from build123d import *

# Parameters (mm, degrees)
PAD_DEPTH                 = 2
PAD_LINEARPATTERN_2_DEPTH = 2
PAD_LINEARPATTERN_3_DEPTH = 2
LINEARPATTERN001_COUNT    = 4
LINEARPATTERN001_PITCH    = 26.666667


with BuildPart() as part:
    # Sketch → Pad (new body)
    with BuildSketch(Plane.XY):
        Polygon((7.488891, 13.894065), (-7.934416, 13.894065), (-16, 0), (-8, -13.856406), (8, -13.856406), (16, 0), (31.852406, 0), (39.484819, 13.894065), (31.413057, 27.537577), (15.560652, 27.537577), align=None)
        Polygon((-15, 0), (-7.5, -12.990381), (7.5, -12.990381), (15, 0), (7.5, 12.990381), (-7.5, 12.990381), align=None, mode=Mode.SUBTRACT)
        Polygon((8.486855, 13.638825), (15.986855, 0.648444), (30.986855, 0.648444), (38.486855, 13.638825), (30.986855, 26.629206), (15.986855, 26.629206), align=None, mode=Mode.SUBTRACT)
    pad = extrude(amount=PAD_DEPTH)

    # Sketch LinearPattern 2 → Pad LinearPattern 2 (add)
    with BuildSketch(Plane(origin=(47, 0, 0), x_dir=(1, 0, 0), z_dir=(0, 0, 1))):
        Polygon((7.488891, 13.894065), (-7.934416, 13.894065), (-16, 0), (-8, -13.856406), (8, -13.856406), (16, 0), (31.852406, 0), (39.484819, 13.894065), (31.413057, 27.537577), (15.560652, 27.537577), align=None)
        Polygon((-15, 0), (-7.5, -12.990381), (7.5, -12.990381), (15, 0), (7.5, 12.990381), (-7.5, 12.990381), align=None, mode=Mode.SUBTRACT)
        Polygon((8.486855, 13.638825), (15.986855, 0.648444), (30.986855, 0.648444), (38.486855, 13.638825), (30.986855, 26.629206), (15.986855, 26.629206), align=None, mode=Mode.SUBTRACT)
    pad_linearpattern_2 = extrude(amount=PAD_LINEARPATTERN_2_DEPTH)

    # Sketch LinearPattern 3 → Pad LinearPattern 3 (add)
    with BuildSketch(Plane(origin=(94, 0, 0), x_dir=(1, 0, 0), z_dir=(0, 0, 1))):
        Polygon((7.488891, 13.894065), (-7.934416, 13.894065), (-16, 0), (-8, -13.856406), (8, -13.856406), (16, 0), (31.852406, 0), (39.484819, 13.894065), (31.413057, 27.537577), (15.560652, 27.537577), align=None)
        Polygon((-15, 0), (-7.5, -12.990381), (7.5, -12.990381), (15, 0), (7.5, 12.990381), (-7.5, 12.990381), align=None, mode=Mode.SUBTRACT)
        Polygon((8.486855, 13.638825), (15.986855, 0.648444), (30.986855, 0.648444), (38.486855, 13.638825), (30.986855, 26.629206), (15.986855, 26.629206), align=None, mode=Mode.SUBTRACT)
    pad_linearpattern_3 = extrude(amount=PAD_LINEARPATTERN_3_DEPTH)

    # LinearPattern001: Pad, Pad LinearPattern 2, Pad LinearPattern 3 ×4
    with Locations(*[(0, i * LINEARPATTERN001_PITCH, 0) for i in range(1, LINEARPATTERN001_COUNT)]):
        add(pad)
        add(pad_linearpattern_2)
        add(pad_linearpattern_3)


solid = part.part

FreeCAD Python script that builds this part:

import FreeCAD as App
import Part
import Sketcher
from FreeCAD import Vector
Q = App.Units.Quantity

doc = App.newDocument("Part")
params = doc.addObject("Spreadsheet::Sheet", "Params")
for row, (alias, value) in enumerate([
    ("sketch1_width", "16 mm"),
    ("sketch1_width2", "15 mm"),
    ("sketch1_length", "16 mm"),
    ("sketch1_length2", "15 mm"),
    ("pad1_length", "2 mm"),
    ("sketch2_width", "16 mm"),
    ("sketch2_width2", "15 mm"),
    ("sketch2_length", "16 mm"),
    ("sketch2_length2", "15 mm"),
    ("pad2_length", "2 mm"),
    ("sketch3_width", "16 mm"),
    ("sketch3_width2", "15 mm"),
    ("sketch3_length", "16 mm"),
    ("sketch3_length2", "15 mm"),
    ("pad3_length", "2 mm"),
    ("linearpattern_pitch", "26.666667 mm"),
], start=1):
    params.set(f"A{row}", alias)
    params.set(f"B{row}", "=" + value)
    params.setAlias(f"B{row}", alias)

body = doc.addObject("PartDesign::Body", "Body")

sketch1 = body.newObject("Sketcher::SketchObject", "Sketch")
sketch1.AttachmentSupport = (doc.getObject("XY_Plane"), [""])
sketch1.MapMode = "FlatFace"
sketch1.addGeometry(Part.LineSegment(Vector(7.488891, 13.894065, 0), Vector(-7.934416, 13.894065, 0)), False)
sketch1.addGeometry(Part.LineSegment(Vector(-7.934416, 13.894065, 0), Vector(-16, 0, 0)), False)
sketch1.addGeometry(Part.LineSegment(Vector(-16, 0, 0), Vector(-8, -13.856406, 0)), False)
sketch1.addGeometry(Part.LineSegment(Vector(-8, -13.856406, 0), Vector(8, -13.856406, 0)), False)
sketch1.addGeometry(Part.LineSegment(Vector(8, -13.856406, 0), Vector(16, 0, 0)), False)
sketch1.addGeometry(Part.LineSegment(Vector(16, 0, 0), Vector(31.852406, 0, 0)), False)
sketch1.addGeometry(Part.LineSegment(Vector(31.852406, 0, 0), Vector(39.484819, 13.894065, 0)), False)
sketch1.addGeometry(Part.LineSegment(Vector(39.484819, 13.894065, 0), Vector(31.413057, 27.537577, 0)), False)
sketch1.addGeometry(Part.LineSegment(Vector(31.413057, 27.537577, 0), Vector(15.560652, 27.537577, 0)), False)
sketch1.addGeometry(Part.LineSegment(Vector(15.560652, 27.537577, 0), Vector(7.488891, 13.894065, 0)), False)
sketch1.addGeometry(Part.LineSegment(Vector(-7.5, -12.990381, 0), Vector(-15, 0, 0)), False)
sketch1.addGeometry(Part.LineSegment(Vector(-15, 0, 0), Vector(-7.5, 12.990381, 0)), False)
sketch1.addGeometry(Part.LineSegment(Vector(-7.5, 12.990381, 0), Vector(7.5, 12.990381, 0)), False)
sketch1.addGeometry(Part.LineSegment(Vector(7.5, 12.990381, 0), Vector(15, 0, 0)), False)
sketch1.addGeometry(Part.LineSegment(Vector(15, 0, 0), Vector(7.5, -12.990381, 0)), False)
sketch1.addGeometry(Part.LineSegment(Vector(7.5, -12.990381, 0), Vector(-7.5, -12.990381, 0)), False)
sketch1.addGeometry(Part.LineSegment(Vector(15.986855, 0.648444, 0), Vector(8.486855, 13.638825, 0)), False)
sketch1.addGeometry(Part.LineSegment(Vector(8.486855, 13.638825, 0), Vector(15.986855, 26.629206, 0)), False)
sketch1.addGeometry(Part.LineSegment(Vector(15.986855, 26.629206, 0), Vector(30.986855, 26.629206, 0)), False)
sketch1.addGeometry(Part.LineSegment(Vector(30.986855, 26.629206, 0), Vector(38.486855, 13.638825, 0)), False)
sketch1.addGeometry(Part.LineSegment(Vector(38.486855, 13.638825, 0), Vector(30.986855, 0.648444, 0)), False)
sketch1.addGeometry(Part.LineSegment(Vector(30.986855, 0.648444, 0), Vector(15.986855, 0.648444, 0)), False)
sketch1.addConstraint(Sketcher.Constraint("Coincident", 0, 2, 1, 1))
sketch1.addConstraint(Sketcher.Constraint("Coincident", 1, 2, 2, 1))
sketch1.addConstraint(Sketcher.Constraint("Coincident", 2, 2, 3, 1))
sketch1.addConstraint(Sketcher.Constraint("Coincident", 3, 2, 4, 1))
sketch1.addConstraint(Sketcher.Constraint("Coincident", 4, 2, 5, 1))
sketch1.addConstraint(Sketcher.Constraint("Coincident", 5, 2, 6, 1))
sketch1.addConstraint(Sketcher.Constraint("Coincident", 6, 2, 7, 1))
sketch1.addConstraint(Sketcher.Constraint("Coincident", 7, 2, 8, 1))
sketch1.addConstraint(Sketcher.Constraint("Coincident", 8, 2, 9, 1))
sketch1.addConstraint(Sketcher.Constraint("Coincident", 9, 2, 0, 1))
sketch1.addConstraint(Sketcher.Constraint("Coincident", 10, 2, 11, 1))
sketch1.addConstraint(Sketcher.Constraint("Coincident", 11, 2, 12, 1))
sketch1.addConstraint(Sketcher.Constraint("Coincident", 12, 2, 13, 1))
sketch1.addConstraint(Sketcher.Constraint("Coincident", 13, 2, 14, 1))
sketch1.addConstraint(Sketcher.Constraint("Coincident", 14, 2, 15, 1))
sketch1.addConstraint(Sketcher.Constraint("Coincident", 15, 2, 10, 1))
sketch1.addConstraint(Sketcher.Constraint("Coincident", 16, 2, 17, 1))
sketch1.addConstraint(Sketcher.Constraint("Coincident", 17, 2, 18, 1))
sketch1.addConstraint(Sketcher.Constraint("Coincident", 18, 2, 19, 1))
sketch1.addConstraint(Sketcher.Constraint("Coincident", 19, 2, 20, 1))
sketch1.addConstraint(Sketcher.Constraint("Coincident", 20, 2, 21, 1))
sketch1.addConstraint(Sketcher.Constraint("Coincident", 21, 2, 16, 1))
sketch1.addConstraint(Sketcher.Constraint("Horizontal", 0))
sketch1.addConstraint(Sketcher.Constraint("Horizontal", 3))
sketch1.addConstraint(Sketcher.Constraint("Horizontal", 5))
sketch1.addConstraint(Sketcher.Constraint("Horizontal", 8))
sketch1.addConstraint(Sketcher.Constraint("Horizontal", 12))
sketch1.addConstraint(Sketcher.Constraint("Horizontal", 15))
sketch1.addConstraint(Sketcher.Constraint("Horizontal", 18))
sketch1.addConstraint(Sketcher.Constraint("Horizontal", 21))
sketch1.addConstraint(Sketcher.Constraint("Symmetric", 1, 2, 4, 2, -1, 1))
sketch1.addConstraint(Sketcher.Constraint("Symmetric", 10, 2, 13, 2, -1, 1))
sketch1.addConstraint(Sketcher.Constraint("Symmetric", 11, 2, 14, 2, -1, 1))
sketch1.addConstraint(Sketcher.Constraint("PointOnObject", 1, 2, -1))
sketch1.addConstraint(Sketcher.Constraint("PointOnObject", 10, 2, -1))
sketch1.addConstraint(Sketcher.Constraint("Parallel", 2, 10))
sketch1.addConstraint(Sketcher.Constraint("Parallel", 4, 11))
sketch1.addConstraint(Sketcher.Constraint("Parallel", 10, 13))
sketch1.addConstraint(Sketcher.Constraint("Parallel", 13, 16))
sketch1.addConstraint(Sketcher.Constraint("Parallel", 14, 17))
sketch1.addConstraint(Sketcher.Constraint("Parallel", 16, 19))
sketch1.addConstraint(Sketcher.Constraint("Parallel", 17, 20))
sketch1.addConstraint(Sketcher.Constraint("Horizontal", 0, 2, 6, 2))
sketch1.addConstraint(Sketcher.Constraint("Horizontal", 16, 2, 19, 2))
sketch1.addConstraint(Sketcher.Constraint("Vertical", 12, 2, 14, 2))
sketch1.addConstraint(Sketcher.Constraint("Vertical", 18, 2, 20, 2))
sketch1.addConstraint(Sketcher.Constraint("Equal", 5, 8))
sketch1.addConstraint(Sketcher.Constraint("Equal", 15, 18))
sketch1.addConstraint(Sketcher.Constraint("Equal", 6, 7))
sketch1.addConstraint(Sketcher.Constraint("Equal", 7, 9))
sketch1.addConstraint(Sketcher.Constraint("Equal", 14, 16))
sketch1.addConstraint(Sketcher.Constraint("DistanceX", 3, 1, 3, 2, Q("16 mm")))
sketch1.addConstraint(Sketcher.Constraint("DistanceX", 12, 1, 12, 2, Q("15 mm")))
sketch1.addConstraint(Sketcher.Constraint("Angle", 2, Q("-59.999999 deg")))
sketch1.addConstraint(Sketcher.Constraint("Distance", 2, Q("16 mm")))
sketch1.addConstraint(Sketcher.Constraint("Distance", 10, Q("15 mm")))
sketch1.addConstraint(Sketcher.Constraint("DistanceX", 17, 2, 7, 2, Q("15.426202 mm")))
sketch1.addConstraint(Sketcher.Constraint("Distance", 1, Q("16.06545 mm")))
sketch1.addConstraint(Sketcher.Constraint("DistanceX", 0, 2, 0, 1, Q("15.423307 mm")))
sketch1.addConstraint(Sketcher.Constraint("DistanceX", 5, 1, 5, 2, Q("15.852406 mm")))
sketch1.addConstraint(Sketcher.Constraint("DistanceX", -1, 1, 6, 2, Q("39.484819 mm")))
sketch1.addConstraint(Sketcher.Constraint("DistanceX", -1, 1, 8, 2, Q("15.560652 mm")))
sketch1.addConstraint(Sketcher.Constraint("DistanceY", 16, 2, 9, 2, Q("0.25524 mm")))
sketch1.setExpression("Constraints[51]", "Params.sketch1_width")
sketch1.setExpression("Constraints[52]", "Params.sketch1_width2")
sketch1.setExpression("Constraints[54]", "Params.sketch1_length")
sketch1.setExpression("Constraints[55]", "Params.sketch1_length2")
pad1 = body.newObject("PartDesign::Pad", "Pad")
pad1.Profile = sketch1
pad1.setExpression("Length", "Params.pad1_length")

sketch2 = body.newObject("Sketcher::SketchObject", "Sketch001")
sketch2.AttachmentSupport = (doc.getObject("XY_Plane"), [""])
sketch2.MapMode = "FlatFace"
sketch2.addGeometry(Part.LineSegment(Vector(54.488891, 13.894065, 0), Vector(39.065584, 13.894065, 0)), False)
sketch2.addGeometry(Part.LineSegment(Vector(39.065584, 13.894065, 0), Vector(31, 0, 0)), False)
sketch2.addGeometry(Part.LineSegment(Vector(31, 0, 0), Vector(39, -13.856406, 0)), False)
sketch2.addGeometry(Part.LineSegment(Vector(39, -13.856406, 0), Vector(55, -13.856406, 0)), False)
sketch2.addGeometry(Part.LineSegment(Vector(55, -13.856406, 0), Vector(63, 0, 0)), False)
sketch2.addGeometry(Part.LineSegment(Vector(63, 0, 0), Vector(78.852406, 0, 0)), False)
sketch2.addGeometry(Part.LineSegment(Vector(78.852406, 0, 0), Vector(86.484819, 13.894065, 0)), False)
sketch2.addGeometry(Part.LineSegment(Vector(86.484819, 13.894065, 0), Vector(78.413057, 27.537577, 0)), False)
sketch2.addGeometry(Part.LineSegment(Vector(78.413057, 27.537577, 0), Vector(62.560652, 27.537577, 0)), False)
sketch2.addGeometry(Part.LineSegment(Vector(62.560652, 27.537577, 0), Vector(54.488891, 13.894065, 0)), False)
sketch2.addGeometry(Part.LineSegment(Vector(39.5, -12.990381, 0), Vector(32, 0, 0)), False)
sketch2.addGeometry(Part.LineSegment(Vector(32, 0, 0), Vector(39.5, 12.990381, 0)), False)
sketch2.addGeometry(Part.LineSegment(Vector(39.5, 12.990381, 0), Vector(54.5, 12.990381, 0)), False)
sketch2.addGeometry(Part.LineSegment(Vector(54.5, 12.990381, 0), Vector(62, 0, 0)), False)
sketch2.addGeometry(Part.LineSegment(Vector(62, 0, 0), Vector(54.5, -12.990381, 0)), False)
sketch2.addGeometry(Part.LineSegment(Vector(54.5, -12.990381, 0), Vector(39.5, -12.990381, 0)), False)
sketch2.addGeometry(Part.LineSegment(Vector(62.986855, 0.648444, 0), Vector(55.486855, 13.638825, 0)), False)
sketch2.addGeometry(Part.LineSegment(Vector(55.486855, 13.638825, 0), Vector(62.986855, 26.629206, 0)), False)
sketch2.addGeometry(Part.LineSegment(Vector(62.986855, 26.629206, 0), Vector(77.986855, 26.629206, 0)), False)
sketch2.addGeometry(Part.LineSegment(Vector(77.986855, 26.629206, 0), Vector(85.486855, 13.638825, 0)), False)
sketch2.addGeometry(Part.LineSegment(Vector(85.486855, 13.638825, 0), Vector(77.986855, 0.648444, 0)), False)
sketch2.addGeometry(Part.LineSegment(Vector(77.986855, 0.648444, 0), Vector(62.986855, 0.648444, 0)), False)
sketch2.addConstraint(Sketcher.Constraint("Coincident", 0, 2, 1, 1))
sketch2.addConstraint(Sketcher.Constraint("Coincident", 1, 2, 2, 1))
sketch2.addConstraint(Sketcher.Constraint("Coincident", 2, 2, 3, 1))
sketch2.addConstraint(Sketcher.Constraint("Coincident", 3, 2, 4, 1))
sketch2.addConstraint(Sketcher.Constraint("Coincident", 4, 2, 5, 1))
sketch2.addConstraint(Sketcher.Constraint("Coincident", 5, 2, 6, 1))
sketch2.addConstraint(Sketcher.Constraint("Coincident", 6, 2, 7, 1))
sketch2.addConstraint(Sketcher.Constraint("Coincident", 7, 2, 8, 1))
sketch2.addConstraint(Sketcher.Constraint("Coincident", 8, 2, 9, 1))
sketch2.addConstraint(Sketcher.Constraint("Coincident", 9, 2, 0, 1))
sketch2.addConstraint(Sketcher.Constraint("Coincident", 10, 2, 11, 1))
sketch2.addConstraint(Sketcher.Constraint("Coincident", 11, 2, 12, 1))
sketch2.addConstraint(Sketcher.Constraint("Coincident", 12, 2, 13, 1))
sketch2.addConstraint(Sketcher.Constraint("Coincident", 13, 2, 14, 1))
sketch2.addConstraint(Sketcher.Constraint("Coincident", 14, 2, 15, 1))
sketch2.addConstraint(Sketcher.Constraint("Coincident", 15, 2, 10, 1))
sketch2.addConstraint(Sketcher.Constraint("Coincident", 16, 2, 17, 1))
sketch2.addConstraint(Sketcher.Constraint("Coincident", 17, 2, 18, 1))
sketch2.addConstraint(Sketcher.Constraint("Coincident", 18, 2, 19, 1))
sketch2.addConstraint(Sketcher.Constraint("Coincident", 19, 2, 20, 1))
sketch2.addConstraint(Sketcher.Constraint("Coincident", 20, 2, 21, 1))
sketch2.addConstraint(Sketcher.Constraint("Coincident", 21, 2, 16, 1))
sketch2.addConstraint(Sketcher.Constraint("Horizontal", 0))
sketch2.addConstraint(Sketcher.Constraint("Horizontal", 3))
sketch2.addConstraint(Sketcher.Constraint("Horizontal", 5))
sketch2.addConstraint(Sketcher.Constraint("Horizontal", 8))
sketch2.addConstraint(Sketcher.Constraint("Horizontal", 12))
sketch2.addConstraint(Sketcher.Constraint("Horizontal", 15))
sketch2.addConstraint(Sketcher.Constraint("Horizontal", 18))
sketch2.addConstraint(Sketcher.Constraint("Horizontal", 21))
sketch2.addConstraint(Sketcher.Constraint("Symmetric", 12, 2, 14, 2, -1))
sketch2.addConstraint(Sketcher.Constraint("PointOnObject", 1, 2, -1))
sketch2.addConstraint(Sketcher.Constraint("PointOnObject", 4, 2, -1))
sketch2.addConstraint(Sketcher.Constraint("PointOnObject", 10, 2, -1))
sketch2.addConstraint(Sketcher.Constraint("PointOnObject", 13, 2, -1))
sketch2.addConstraint(Sketcher.Constraint("Parallel", 2, 10))
sketch2.addConstraint(Sketcher.Constraint("Parallel", 4, 11))
sketch2.addConstraint(Sketcher.Constraint("Parallel", 10, 13))
sketch2.addConstraint(Sketcher.Constraint("Parallel", 11, 14))
sketch2.addConstraint(Sketcher.Constraint("Parallel", 13, 16))
sketch2.addConstraint(Sketcher.Constraint("Parallel", 14, 17))
sketch2.addConstraint(Sketcher.Constraint("Parallel", 16, 19))
sketch2.addConstraint(Sketcher.Constraint("Parallel", 17, 20))
sketch2.addConstraint(Sketcher.Constraint("Horizontal", 0, 2, 6, 2))
sketch2.addConstraint(Sketcher.Constraint("Horizontal", 16, 2, 19, 2))
sketch2.addConstraint(Sketcher.Constraint("Vertical", 18, 2, 20, 2))
sketch2.addConstraint(Sketcher.Constraint("Equal", 5, 8))
sketch2.addConstraint(Sketcher.Constraint("Equal", 15, 18))
sketch2.addConstraint(Sketcher.Constraint("Equal", 6, 7))
sketch2.addConstraint(Sketcher.Constraint("Equal", 7, 9))
sketch2.addConstraint(Sketcher.Constraint("Equal", 14, 16))
sketch2.addConstraint(Sketcher.Constraint("DistanceX", 3, 1, 3, 2, Q("16 mm")))
sketch2.addConstraint(Sketcher.Constraint("DistanceX", 12, 1, 12, 2, Q("15 mm")))
sketch2.addConstraint(Sketcher.Constraint("Angle", 2, Q("-59.999999 deg")))
sketch2.addConstraint(Sketcher.Constraint("Distance", 2, Q("16 mm")))
sketch2.addConstraint(Sketcher.Constraint("Distance", 10, Q("15 mm")))
sketch2.addConstraint(Sketcher.Constraint("DistanceX", -1, 1, 1, 2, Q("31 mm")))
sketch2.addConstraint(Sketcher.Constraint("DistanceX", -1, 1, 10, 2, Q("32 mm")))
sketch2.addConstraint(Sketcher.Constraint("DistanceX", 17, 2, 7, 2, Q("15.426202 mm")))
sketch2.addConstraint(Sketcher.Constraint("Distance", 1, Q("16.06545 mm")))
sketch2.addConstraint(Sketcher.Constraint("DistanceX", 0, 2, 0, 1, Q("15.423307 mm")))
sketch2.addConstraint(Sketcher.Constraint("DistanceX", 5, 1, 5, 2, Q("15.852406 mm")))
sketch2.addConstraint(Sketcher.Constraint("DistanceX", -1, 1, 6, 2, Q("86.484819 mm")))
sketch2.addConstraint(Sketcher.Constraint("DistanceX", -1, 1, 8, 2, Q("62.560652 mm")))
sketch2.addConstraint(Sketcher.Constraint("DistanceY", 16, 2, 9, 2, Q("0.25524 mm")))
sketch2.setExpression("Constraints[51]", "Params.sketch2_width")
sketch2.setExpression("Constraints[52]", "Params.sketch2_width2")
sketch2.setExpression("Constraints[54]", "Params.sketch2_length")
sketch2.setExpression("Constraints[55]", "Params.sketch2_length2")
pad2 = body.newObject("PartDesign::Pad", "Pad001")
pad2.Profile = sketch2
pad2.setExpression("Length", "Params.pad2_length")

sketch3 = body.newObject("Sketcher::SketchObject", "Sketch002")
sketch3.AttachmentSupport = (doc.getObject("XY_Plane"), [""])
sketch3.MapMode = "FlatFace"
sketch3.addGeometry(Part.LineSegment(Vector(101.488891, 13.894065, 0), Vector(86.065584, 13.894065, 0)), False)
sketch3.addGeometry(Part.LineSegment(Vector(86.065584, 13.894065, 0), Vector(78, 0, 0)), False)
sketch3.addGeometry(Part.LineSegment(Vector(78, 0, 0), Vector(86, -13.856406, 0)), False)
sketch3.addGeometry(Part.LineSegment(Vector(86, -13.856406, 0), Vector(102, -13.856406, 0)), False)
sketch3.addGeometry(Part.LineSegment(Vector(102, -13.856406, 0), Vector(110, 0, 0)), False)
sketch3.addGeometry(Part.LineSegment(Vector(110, 0, 0), Vector(125.852406, 0, 0)), False)
sketch3.addGeometry(Part.LineSegment(Vector(125.852406, 0, 0), Vector(133.484819, 13.894065, 0)), False)
sketch3.addGeometry(Part.LineSegment(Vector(133.484819, 13.894065, 0), Vector(125.413057, 27.537577, 0)), False)
sketch3.addGeometry(Part.LineSegment(Vector(125.413057, 27.537577, 0), Vector(109.560652, 27.537577, 0)), False)
sketch3.addGeometry(Part.LineSegment(Vector(109.560652, 27.537577, 0), Vector(101.488891, 13.894065, 0)), False)
sketch3.addGeometry(Part.LineSegment(Vector(86.5, -12.990381, 0), Vector(79, 0, 0)), False)
sketch3.addGeometry(Part.LineSegment(Vector(79, 0, 0), Vector(86.5, 12.990381, 0)), False)
sketch3.addGeometry(Part.LineSegment(Vector(86.5, 12.990381, 0), Vector(101.5, 12.990381, 0)), False)
sketch3.addGeometry(Part.LineSegment(Vector(101.5, 12.990381, 0), Vector(109, 0, 0)), False)
sketch3.addGeometry(Part.LineSegment(Vector(109, 0, 0), Vector(101.5, -12.990381, 0)), False)
sketch3.addGeometry(Part.LineSegment(Vector(101.5, -12.990381, 0), Vector(86.5, -12.990381, 0)), False)
sketch3.addGeometry(Part.LineSegment(Vector(109.986855, 0.648444, 0), Vector(102.486855, 13.638825, 0)), False)
sketch3.addGeometry(Part.LineSegment(Vector(102.486855, 13.638825, 0), Vector(109.986855, 26.629206, 0)), False)
sketch3.addGeometry(Part.LineSegment(Vector(109.986855, 26.629206, 0), Vector(124.986855, 26.629206, 0)), False)
sketch3.addGeometry(Part.LineSegment(Vector(124.986855, 26.629206, 0), Vector(132.486855, 13.638825, 0)), False)
sketch3.addGeometry(Part.LineSegment(Vector(132.486855, 13.638825, 0), Vector(124.986855, 0.648444, 0)), False)
sketch3.addGeometry(Part.LineSegment(Vector(124.986855, 0.648444, 0), Vector(109.986855, 0.648444, 0)), False)
sketch3.addConstraint(Sketcher.Constraint("Coincident", 0, 2, 1, 1))
sketch3.addConstraint(Sketcher.Constraint("Coincident", 1, 2, 2, 1))
sketch3.addConstraint(Sketcher.Constraint("Coincident", 2, 2, 3, 1))
sketch3.addConstraint(Sketcher.Constraint("Coincident", 3, 2, 4, 1))
sketch3.addConstraint(Sketcher.Constraint("Coincident", 4, 2, 5, 1))
sketch3.addConstraint(Sketcher.Constraint("Coincident", 5, 2, 6, 1))
sketch3.addConstraint(Sketcher.Constraint("Coincident", 6, 2, 7, 1))
sketch3.addConstraint(Sketcher.Constraint("Coincident", 7, 2, 8, 1))
sketch3.addConstraint(Sketcher.Constraint("Coincident", 8, 2, 9, 1))
sketch3.addConstraint(Sketcher.Constraint("Coincident", 9, 2, 0, 1))
sketch3.addConstraint(Sketcher.Constraint("Coincident", 10, 2, 11, 1))
sketch3.addConstraint(Sketcher.Constraint("Coincident", 11, 2, 12, 1))
sketch3.addConstraint(Sketcher.Constraint("Coincident", 12, 2, 13, 1))
sketch3.addConstraint(Sketcher.Constraint("Coincident", 13, 2, 14, 1))
sketch3.addConstraint(Sketcher.Constraint("Coincident", 14, 2, 15, 1))
sketch3.addConstraint(Sketcher.Constraint("Coincident", 15, 2, 10, 1))
sketch3.addConstraint(Sketcher.Constraint("Coincident", 16, 2, 17, 1))
sketch3.addConstraint(Sketcher.Constraint("Coincident", 17, 2, 18, 1))
sketch3.addConstraint(Sketcher.Constraint("Coincident", 18, 2, 19, 1))
sketch3.addConstraint(Sketcher.Constraint("Coincident", 19, 2, 20, 1))
sketch3.addConstraint(Sketcher.Constraint("Coincident", 20, 2, 21, 1))
sketch3.addConstraint(Sketcher.Constraint("Coincident", 21, 2, 16, 1))
sketch3.addConstraint(Sketcher.Constraint("Horizontal", 0))
sketch3.addConstraint(Sketcher.Constraint("Horizontal", 3))
sketch3.addConstraint(Sketcher.Constraint("Horizontal", 5))
sketch3.addConstraint(Sketcher.Constraint("Horizontal", 8))
sketch3.addConstraint(Sketcher.Constraint("Horizontal", 12))
sketch3.addConstraint(Sketcher.Constraint("Horizontal", 15))
sketch3.addConstraint(Sketcher.Constraint("Horizontal", 18))
sketch3.addConstraint(Sketcher.Constraint("Horizontal", 21))
sketch3.addConstraint(Sketcher.Constraint("Symmetric", 12, 2, 14, 2, -1))
sketch3.addConstraint(Sketcher.Constraint("PointOnObject", 1, 2, -1))
sketch3.addConstraint(Sketcher.Constraint("PointOnObject", 4, 2, -1))
sketch3.addConstraint(Sketcher.Constraint("PointOnObject", 10, 2, -1))
sketch3.addConstraint(Sketcher.Constraint("PointOnObject", 13, 2, -1))
sketch3.addConstraint(Sketcher.Constraint("Parallel", 2, 10))
sketch3.addConstraint(Sketcher.Constraint("Parallel", 4, 11))
sketch3.addConstraint(Sketcher.Constraint("Parallel", 10, 13))
sketch3.addConstraint(Sketcher.Constraint("Parallel", 11, 14))
sketch3.addConstraint(Sketcher.Constraint("Parallel", 13, 16))
sketch3.addConstraint(Sketcher.Constraint("Parallel", 14, 17))
sketch3.addConstraint(Sketcher.Constraint("Parallel", 16, 19))
sketch3.addConstraint(Sketcher.Constraint("Parallel", 17, 20))
sketch3.addConstraint(Sketcher.Constraint("Horizontal", 0, 2, 6, 2))
sketch3.addConstraint(Sketcher.Constraint("Horizontal", 16, 2, 19, 2))
sketch3.addConstraint(Sketcher.Constraint("Vertical", 18, 2, 20, 2))
sketch3.addConstraint(Sketcher.Constraint("Equal", 5, 8))
sketch3.addConstraint(Sketcher.Constraint("Equal", 15, 18))
sketch3.addConstraint(Sketcher.Constraint("Equal", 6, 7))
sketch3.addConstraint(Sketcher.Constraint("Equal", 7, 9))
sketch3.addConstraint(Sketcher.Constraint("Equal", 14, 16))
sketch3.addConstraint(Sketcher.Constraint("DistanceX", 3, 1, 3, 2, Q("16 mm")))
sketch3.addConstraint(Sketcher.Constraint("DistanceX", 12, 1, 12, 2, Q("15 mm")))
sketch3.addConstraint(Sketcher.Constraint("Angle", 2, Q("-59.999999 deg")))
sketch3.addConstraint(Sketcher.Constraint("Distance", 2, Q("16 mm")))
sketch3.addConstraint(Sketcher.Constraint("Distance", 10, Q("15 mm")))
sketch3.addConstraint(Sketcher.Constraint("DistanceX", -1, 1, 1, 2, Q("78 mm")))
sketch3.addConstraint(Sketcher.Constraint("DistanceX", -1, 1, 10, 2, Q("79 mm")))
sketch3.addConstraint(Sketcher.Constraint("DistanceX", 17, 2, 7, 2, Q("15.426202 mm")))
sketch3.addConstraint(Sketcher.Constraint("Distance", 1, Q("16.06545 mm")))
sketch3.addConstraint(Sketcher.Constraint("DistanceX", 0, 2, 0, 1, Q("15.423307 mm")))
sketch3.addConstraint(Sketcher.Constraint("DistanceX", 5, 1, 5, 2, Q("15.852406 mm")))
sketch3.addConstraint(Sketcher.Constraint("DistanceX", -1, 1, 6, 2, Q("133.484819 mm")))
sketch3.addConstraint(Sketcher.Constraint("DistanceX", -1, 1, 9, 2, Q("101.488891 mm")))
sketch3.addConstraint(Sketcher.Constraint("DistanceY", 16, 2, 9, 2, Q("0.25524 mm")))
sketch3.setExpression("Constraints[51]", "Params.sketch3_width")
sketch3.setExpression("Constraints[52]", "Params.sketch3_width2")
sketch3.setExpression("Constraints[54]", "Params.sketch3_length")
sketch3.setExpression("Constraints[55]", "Params.sketch3_length2")
pad3 = body.newObject("PartDesign::Pad", "Pad002")
pad3.Profile = sketch3
pad3.setExpression("Length", "Params.pad3_length")
doc.recompute()

linearpattern = body.newObject("PartDesign::LinearPattern", "LinearPattern")
linearpattern.Originals = [pad1, pad2, pad3]
linearpattern.Direction = (doc.getObject("Y_Axis"), [""])
linearpattern.Mode = "offset"
linearpattern.setExpression("Offset", "Params.linearpattern_pitch")
linearpattern.Occurrences = 4
body.Tip = linearpattern

doc.recompute()
